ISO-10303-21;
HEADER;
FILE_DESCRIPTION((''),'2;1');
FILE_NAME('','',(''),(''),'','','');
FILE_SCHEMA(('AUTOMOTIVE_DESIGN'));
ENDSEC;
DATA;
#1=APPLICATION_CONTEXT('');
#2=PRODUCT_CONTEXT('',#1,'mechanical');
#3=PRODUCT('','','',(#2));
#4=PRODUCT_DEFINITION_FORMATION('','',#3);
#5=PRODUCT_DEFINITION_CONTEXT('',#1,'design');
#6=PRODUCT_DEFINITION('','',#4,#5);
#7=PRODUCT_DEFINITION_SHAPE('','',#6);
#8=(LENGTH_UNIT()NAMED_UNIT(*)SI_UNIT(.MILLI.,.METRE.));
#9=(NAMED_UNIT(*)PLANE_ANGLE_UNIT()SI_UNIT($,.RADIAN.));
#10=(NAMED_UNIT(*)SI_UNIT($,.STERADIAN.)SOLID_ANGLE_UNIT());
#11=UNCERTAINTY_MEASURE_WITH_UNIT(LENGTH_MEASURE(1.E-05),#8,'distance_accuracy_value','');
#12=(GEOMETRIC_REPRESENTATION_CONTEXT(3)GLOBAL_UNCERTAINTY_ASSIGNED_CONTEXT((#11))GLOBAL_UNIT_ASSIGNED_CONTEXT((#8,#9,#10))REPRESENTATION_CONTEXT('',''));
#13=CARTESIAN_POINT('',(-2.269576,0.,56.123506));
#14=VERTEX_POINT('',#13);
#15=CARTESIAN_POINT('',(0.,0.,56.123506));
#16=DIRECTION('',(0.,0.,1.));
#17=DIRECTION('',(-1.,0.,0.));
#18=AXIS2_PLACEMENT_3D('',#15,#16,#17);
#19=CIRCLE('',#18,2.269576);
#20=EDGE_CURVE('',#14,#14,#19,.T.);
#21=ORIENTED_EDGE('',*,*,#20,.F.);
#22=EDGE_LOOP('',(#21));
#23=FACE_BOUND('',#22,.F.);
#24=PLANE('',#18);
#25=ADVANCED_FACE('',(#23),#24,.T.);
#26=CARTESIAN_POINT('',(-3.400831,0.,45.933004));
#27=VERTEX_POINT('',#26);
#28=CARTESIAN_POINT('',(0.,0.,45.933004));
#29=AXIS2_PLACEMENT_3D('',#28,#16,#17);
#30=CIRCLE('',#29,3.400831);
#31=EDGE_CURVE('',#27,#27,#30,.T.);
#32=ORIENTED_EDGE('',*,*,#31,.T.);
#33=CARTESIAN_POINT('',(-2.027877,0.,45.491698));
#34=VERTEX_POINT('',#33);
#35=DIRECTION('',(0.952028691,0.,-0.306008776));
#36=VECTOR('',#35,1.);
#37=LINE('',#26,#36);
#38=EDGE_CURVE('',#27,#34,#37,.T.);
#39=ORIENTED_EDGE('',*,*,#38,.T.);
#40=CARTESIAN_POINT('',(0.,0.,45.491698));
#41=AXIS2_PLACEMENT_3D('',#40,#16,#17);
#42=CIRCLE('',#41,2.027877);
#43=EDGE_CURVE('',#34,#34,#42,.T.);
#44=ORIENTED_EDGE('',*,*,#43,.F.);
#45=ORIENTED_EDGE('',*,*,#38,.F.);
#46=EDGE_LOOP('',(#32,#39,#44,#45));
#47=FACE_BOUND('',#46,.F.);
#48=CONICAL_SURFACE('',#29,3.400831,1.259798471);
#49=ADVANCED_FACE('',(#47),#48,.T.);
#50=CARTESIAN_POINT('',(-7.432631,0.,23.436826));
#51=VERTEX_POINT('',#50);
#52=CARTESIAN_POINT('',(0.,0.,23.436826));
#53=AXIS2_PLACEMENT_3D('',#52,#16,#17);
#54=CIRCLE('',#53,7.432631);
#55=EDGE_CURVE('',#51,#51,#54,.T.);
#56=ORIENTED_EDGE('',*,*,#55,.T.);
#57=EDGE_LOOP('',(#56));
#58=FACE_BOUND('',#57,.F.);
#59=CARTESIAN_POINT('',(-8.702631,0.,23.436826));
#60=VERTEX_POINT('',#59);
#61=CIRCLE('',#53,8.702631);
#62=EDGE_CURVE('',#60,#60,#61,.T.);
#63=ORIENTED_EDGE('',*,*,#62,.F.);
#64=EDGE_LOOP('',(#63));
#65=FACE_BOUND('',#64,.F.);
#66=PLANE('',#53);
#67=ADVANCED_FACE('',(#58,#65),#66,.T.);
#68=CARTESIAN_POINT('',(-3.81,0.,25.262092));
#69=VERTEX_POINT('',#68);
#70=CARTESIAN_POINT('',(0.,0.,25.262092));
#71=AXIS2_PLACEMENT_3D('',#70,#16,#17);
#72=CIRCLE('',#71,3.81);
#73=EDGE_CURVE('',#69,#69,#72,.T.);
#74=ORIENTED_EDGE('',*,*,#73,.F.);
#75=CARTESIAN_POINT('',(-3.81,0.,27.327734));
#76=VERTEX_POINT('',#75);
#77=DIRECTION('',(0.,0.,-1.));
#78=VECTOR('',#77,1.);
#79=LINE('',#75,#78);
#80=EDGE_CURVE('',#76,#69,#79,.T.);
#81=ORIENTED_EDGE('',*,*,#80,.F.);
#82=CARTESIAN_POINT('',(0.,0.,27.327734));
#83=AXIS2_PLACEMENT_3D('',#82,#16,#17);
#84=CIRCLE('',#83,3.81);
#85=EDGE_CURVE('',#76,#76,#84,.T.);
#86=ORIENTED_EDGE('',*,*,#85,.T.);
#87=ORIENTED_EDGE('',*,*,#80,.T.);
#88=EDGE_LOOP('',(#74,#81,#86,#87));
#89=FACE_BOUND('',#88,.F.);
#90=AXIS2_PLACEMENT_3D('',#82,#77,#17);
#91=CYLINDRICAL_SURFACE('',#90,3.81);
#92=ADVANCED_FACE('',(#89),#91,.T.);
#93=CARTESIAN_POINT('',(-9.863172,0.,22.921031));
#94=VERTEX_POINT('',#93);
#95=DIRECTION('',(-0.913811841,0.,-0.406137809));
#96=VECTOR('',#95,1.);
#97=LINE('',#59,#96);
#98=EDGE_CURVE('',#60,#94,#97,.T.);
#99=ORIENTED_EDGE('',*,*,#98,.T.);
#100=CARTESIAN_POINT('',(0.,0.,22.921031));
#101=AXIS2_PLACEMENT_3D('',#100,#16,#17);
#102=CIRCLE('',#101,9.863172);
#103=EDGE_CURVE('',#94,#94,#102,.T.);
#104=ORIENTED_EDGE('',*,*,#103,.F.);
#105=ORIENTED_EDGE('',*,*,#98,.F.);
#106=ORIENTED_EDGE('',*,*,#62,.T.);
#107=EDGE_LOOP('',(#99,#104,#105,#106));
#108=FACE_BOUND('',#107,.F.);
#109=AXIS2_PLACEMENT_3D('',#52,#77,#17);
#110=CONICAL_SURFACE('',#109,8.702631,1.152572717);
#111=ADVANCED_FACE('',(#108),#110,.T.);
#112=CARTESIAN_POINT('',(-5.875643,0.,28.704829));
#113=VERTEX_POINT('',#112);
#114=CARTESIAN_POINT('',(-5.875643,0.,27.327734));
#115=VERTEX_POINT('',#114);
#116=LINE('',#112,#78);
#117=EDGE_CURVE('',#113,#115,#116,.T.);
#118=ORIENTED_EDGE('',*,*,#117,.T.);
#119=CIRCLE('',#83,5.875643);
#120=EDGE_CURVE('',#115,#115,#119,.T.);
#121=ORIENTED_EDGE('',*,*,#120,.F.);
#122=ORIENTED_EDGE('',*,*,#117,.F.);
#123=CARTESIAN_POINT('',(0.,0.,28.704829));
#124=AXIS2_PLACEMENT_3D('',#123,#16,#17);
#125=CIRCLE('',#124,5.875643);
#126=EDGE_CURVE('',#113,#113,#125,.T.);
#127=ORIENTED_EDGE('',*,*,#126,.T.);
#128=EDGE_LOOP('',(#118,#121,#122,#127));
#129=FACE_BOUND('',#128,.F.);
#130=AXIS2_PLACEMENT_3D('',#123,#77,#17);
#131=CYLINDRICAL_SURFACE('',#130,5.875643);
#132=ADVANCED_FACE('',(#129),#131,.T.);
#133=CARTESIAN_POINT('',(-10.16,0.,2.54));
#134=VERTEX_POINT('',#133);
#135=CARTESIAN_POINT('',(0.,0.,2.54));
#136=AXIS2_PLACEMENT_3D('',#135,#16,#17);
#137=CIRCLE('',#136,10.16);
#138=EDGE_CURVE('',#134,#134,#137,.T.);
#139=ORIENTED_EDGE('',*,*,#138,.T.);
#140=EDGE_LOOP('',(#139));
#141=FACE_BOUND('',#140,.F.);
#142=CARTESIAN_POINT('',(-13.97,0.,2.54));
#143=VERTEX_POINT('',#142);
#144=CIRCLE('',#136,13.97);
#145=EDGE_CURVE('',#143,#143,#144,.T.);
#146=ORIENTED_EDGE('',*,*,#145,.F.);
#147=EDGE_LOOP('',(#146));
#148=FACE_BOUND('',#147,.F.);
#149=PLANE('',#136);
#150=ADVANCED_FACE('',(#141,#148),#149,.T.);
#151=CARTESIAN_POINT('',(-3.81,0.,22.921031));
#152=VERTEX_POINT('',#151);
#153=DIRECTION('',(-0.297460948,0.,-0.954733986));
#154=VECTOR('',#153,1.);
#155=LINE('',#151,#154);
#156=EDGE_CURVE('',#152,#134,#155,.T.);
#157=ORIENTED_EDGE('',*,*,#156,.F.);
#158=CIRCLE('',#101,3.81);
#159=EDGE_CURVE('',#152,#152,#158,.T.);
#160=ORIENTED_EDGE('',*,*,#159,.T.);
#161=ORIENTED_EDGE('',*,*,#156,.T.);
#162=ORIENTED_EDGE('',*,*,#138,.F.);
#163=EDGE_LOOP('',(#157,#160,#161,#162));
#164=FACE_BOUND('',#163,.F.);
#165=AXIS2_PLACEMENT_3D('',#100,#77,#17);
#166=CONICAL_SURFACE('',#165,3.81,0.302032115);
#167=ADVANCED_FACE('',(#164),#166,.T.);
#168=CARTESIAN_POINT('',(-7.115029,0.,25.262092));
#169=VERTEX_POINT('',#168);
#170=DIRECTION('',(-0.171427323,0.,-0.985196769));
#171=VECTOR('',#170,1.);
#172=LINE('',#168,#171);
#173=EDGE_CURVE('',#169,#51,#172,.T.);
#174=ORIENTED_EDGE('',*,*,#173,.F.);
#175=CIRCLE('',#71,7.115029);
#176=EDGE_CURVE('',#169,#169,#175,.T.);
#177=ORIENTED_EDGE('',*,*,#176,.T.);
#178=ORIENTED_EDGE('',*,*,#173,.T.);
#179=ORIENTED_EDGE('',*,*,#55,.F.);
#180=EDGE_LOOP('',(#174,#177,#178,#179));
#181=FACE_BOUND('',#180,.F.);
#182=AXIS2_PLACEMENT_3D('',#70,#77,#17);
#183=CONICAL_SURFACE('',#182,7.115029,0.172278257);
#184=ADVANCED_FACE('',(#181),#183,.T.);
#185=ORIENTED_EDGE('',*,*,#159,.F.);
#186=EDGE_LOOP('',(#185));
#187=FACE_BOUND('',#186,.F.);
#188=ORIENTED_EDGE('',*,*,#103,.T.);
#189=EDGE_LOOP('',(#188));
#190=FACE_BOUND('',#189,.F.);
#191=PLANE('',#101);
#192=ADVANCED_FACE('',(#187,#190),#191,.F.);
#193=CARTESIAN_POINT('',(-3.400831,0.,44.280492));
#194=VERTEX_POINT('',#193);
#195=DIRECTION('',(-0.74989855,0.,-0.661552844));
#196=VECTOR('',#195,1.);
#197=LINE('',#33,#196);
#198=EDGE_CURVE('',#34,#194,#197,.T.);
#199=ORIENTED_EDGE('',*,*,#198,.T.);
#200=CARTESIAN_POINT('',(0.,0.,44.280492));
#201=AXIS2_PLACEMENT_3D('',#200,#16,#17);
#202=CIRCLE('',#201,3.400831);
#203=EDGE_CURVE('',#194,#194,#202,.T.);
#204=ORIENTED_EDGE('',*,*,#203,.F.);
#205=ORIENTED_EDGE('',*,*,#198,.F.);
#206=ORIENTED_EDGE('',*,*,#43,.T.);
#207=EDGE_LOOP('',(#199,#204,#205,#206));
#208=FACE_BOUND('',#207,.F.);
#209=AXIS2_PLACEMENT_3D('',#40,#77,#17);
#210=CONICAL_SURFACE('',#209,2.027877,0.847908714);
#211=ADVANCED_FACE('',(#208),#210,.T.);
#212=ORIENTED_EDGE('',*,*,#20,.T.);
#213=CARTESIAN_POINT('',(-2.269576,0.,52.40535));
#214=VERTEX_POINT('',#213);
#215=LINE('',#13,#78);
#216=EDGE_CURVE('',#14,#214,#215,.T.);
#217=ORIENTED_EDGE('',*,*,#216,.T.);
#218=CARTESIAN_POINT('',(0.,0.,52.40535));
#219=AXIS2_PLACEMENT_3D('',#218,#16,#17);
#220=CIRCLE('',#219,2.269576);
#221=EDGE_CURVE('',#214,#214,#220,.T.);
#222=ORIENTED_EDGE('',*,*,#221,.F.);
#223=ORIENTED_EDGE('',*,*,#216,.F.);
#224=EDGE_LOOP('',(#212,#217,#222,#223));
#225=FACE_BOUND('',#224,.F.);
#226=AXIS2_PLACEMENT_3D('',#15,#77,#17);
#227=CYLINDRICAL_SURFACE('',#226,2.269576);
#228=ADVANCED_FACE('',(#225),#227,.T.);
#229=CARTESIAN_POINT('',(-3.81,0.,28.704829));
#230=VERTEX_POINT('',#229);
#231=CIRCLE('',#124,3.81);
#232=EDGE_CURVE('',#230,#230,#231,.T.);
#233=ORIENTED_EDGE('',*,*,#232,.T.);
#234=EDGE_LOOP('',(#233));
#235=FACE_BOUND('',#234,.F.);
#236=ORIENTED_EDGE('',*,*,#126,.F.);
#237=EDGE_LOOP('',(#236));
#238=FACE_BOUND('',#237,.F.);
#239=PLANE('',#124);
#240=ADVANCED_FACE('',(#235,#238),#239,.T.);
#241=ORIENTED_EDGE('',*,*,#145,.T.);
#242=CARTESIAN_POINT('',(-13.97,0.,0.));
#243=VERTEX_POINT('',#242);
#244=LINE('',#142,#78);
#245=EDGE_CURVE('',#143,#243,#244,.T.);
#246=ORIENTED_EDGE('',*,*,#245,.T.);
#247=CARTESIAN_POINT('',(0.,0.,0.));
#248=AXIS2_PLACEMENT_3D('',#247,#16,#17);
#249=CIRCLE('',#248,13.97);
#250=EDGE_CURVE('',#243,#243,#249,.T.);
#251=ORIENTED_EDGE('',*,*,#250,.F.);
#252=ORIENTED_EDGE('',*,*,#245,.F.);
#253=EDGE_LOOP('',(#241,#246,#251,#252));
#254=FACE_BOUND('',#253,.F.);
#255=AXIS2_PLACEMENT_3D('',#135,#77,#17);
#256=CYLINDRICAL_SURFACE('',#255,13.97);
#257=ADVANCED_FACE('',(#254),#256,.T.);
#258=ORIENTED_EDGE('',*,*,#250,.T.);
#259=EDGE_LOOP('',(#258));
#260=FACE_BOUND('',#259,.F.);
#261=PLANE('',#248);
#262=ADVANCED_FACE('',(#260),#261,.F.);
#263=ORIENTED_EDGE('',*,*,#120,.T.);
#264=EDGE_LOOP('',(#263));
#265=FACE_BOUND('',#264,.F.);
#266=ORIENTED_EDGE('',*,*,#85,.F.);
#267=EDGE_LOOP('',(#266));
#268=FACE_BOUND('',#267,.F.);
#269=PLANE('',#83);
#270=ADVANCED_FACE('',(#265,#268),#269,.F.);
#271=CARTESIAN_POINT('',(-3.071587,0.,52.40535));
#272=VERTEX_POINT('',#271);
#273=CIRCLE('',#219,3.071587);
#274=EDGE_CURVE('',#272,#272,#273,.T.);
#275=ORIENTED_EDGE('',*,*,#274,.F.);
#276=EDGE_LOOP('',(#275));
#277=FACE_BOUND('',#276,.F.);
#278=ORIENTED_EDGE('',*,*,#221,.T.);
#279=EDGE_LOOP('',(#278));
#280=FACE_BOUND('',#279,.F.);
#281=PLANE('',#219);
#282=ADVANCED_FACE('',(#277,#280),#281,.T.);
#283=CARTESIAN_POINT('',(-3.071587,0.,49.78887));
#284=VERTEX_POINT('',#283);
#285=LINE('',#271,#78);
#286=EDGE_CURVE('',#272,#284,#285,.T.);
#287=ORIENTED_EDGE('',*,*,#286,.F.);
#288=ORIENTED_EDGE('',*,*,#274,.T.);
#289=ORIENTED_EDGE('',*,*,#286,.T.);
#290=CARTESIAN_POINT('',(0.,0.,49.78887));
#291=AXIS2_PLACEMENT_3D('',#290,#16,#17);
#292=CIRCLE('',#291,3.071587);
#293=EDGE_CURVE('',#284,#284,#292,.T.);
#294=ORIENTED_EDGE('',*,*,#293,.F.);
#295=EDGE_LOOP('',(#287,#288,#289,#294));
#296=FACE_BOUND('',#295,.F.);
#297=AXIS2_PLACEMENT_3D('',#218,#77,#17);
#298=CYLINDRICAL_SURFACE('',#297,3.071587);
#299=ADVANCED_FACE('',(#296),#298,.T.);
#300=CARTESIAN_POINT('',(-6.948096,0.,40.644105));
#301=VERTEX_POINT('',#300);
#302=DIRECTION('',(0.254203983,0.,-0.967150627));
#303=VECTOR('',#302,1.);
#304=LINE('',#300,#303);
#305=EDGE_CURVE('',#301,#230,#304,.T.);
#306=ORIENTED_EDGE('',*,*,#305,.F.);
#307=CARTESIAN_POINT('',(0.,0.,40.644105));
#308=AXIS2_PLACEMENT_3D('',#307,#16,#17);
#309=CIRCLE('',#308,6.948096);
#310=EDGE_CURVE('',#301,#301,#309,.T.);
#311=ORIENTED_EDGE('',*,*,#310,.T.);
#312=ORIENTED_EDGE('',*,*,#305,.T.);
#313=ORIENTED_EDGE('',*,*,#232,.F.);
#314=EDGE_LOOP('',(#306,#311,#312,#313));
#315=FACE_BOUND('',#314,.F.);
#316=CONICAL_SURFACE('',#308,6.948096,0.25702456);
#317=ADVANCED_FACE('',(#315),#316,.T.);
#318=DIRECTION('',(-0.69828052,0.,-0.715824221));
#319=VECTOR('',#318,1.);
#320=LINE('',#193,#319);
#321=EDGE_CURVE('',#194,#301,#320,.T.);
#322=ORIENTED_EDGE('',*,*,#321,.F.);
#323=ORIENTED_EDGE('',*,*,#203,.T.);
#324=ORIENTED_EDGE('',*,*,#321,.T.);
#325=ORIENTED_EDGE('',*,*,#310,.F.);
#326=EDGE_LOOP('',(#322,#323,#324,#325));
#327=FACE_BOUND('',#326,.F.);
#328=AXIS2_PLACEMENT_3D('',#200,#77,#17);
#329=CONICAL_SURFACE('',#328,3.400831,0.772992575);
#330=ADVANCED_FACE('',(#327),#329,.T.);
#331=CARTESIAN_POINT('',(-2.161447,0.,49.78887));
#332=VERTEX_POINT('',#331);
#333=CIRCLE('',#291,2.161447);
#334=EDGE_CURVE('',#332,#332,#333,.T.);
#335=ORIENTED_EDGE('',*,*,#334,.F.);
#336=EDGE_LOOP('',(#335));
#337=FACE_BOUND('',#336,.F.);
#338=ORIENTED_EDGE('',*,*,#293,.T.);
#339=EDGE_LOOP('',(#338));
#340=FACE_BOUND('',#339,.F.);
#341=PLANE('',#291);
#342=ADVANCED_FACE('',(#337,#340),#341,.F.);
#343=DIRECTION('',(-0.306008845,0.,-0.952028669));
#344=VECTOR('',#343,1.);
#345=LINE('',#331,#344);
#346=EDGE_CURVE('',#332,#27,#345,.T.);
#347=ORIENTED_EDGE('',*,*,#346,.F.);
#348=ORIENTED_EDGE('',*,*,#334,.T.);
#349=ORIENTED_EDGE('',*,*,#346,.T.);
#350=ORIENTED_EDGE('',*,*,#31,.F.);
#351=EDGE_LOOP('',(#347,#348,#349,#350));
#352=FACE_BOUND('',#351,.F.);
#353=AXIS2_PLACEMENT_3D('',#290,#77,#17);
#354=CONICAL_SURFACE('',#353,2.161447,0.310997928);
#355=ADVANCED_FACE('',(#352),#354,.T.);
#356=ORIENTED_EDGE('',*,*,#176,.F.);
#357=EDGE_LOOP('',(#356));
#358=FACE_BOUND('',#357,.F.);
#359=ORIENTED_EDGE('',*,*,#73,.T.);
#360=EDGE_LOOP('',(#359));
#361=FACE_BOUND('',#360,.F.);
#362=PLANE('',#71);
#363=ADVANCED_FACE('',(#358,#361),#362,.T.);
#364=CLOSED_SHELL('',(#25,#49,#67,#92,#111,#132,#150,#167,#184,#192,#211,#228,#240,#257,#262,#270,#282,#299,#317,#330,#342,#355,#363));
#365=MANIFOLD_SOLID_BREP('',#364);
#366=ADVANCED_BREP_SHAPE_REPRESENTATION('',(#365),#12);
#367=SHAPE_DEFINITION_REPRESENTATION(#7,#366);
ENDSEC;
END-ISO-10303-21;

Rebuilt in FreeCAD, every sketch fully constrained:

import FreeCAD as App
import Part
import Sketcher
from FreeCAD import Vector
Q = App.Units.Quantity


def add_polygon(sketch, points):
    """Adds a closed chain of lines whose ends are joined by coincident constraints."""
    first, n = sketch.GeometryCount, len(points)
    for a, b in zip(points, points[1:] + points[:1]):
        sketch.addGeometry(Part.LineSegment(App.Vector(*a, 0), App.Vector(*b, 0)), False)
    for i in range(n):
        sketch.addConstraint(Sketcher.Constraint("Coincident", first + i, 2, first + (i + 1) % n, 1))

doc = App.newDocument("Part")
body = doc.addObject("PartDesign::Body", "Body")

# Sketch on XZ plane
sketch1 = body.newObject("Sketcher::SketchObject", "Sketch")
sketch1.AttachmentSupport = (doc.getObject("XZ_Plane"), [""])
sketch1.MapMode = "FlatFace"
add_polygon(sketch1, [(-14, 0), (0, 0), (0, 56.1), (-2.3, 56.1), (-2.3, 52.4), (-3.1, 52.4), (-3.1, 49.8), (-2.2, 49.8), (-3.4, 45.9), (-2, 45.5), (-3.4, 44.3), (-6.9, 40.6), (-3.8, 28.7), (-5.9, 28.7), (-5.9, 27.3), (-3.8, 27.3), (-3.8, 25.3), (-7.1, 25.3), (-7.4, 23.4), (-8.7, 23.4), (-9.9, 22.9), (-3.8, 22.9), (-10.2, 2.5), (-14, 2.5)])  # lines 0-23
sketch1.addConstraint([
    Sketcher.Constraint("Horizontal", 0),
    Sketcher.Constraint("Vertical", 1),
    Sketcher.Constraint("Horizontal", 2),
    Sketcher.Constraint("Vertical", 3),
    Sketcher.Constraint("Horizontal", 4),
    Sketcher.Constraint("Vertical", 5),
    Sketcher.Constraint("Horizontal", 6),
    Sketcher.Constraint("Horizontal", 12),
    Sketcher.Constraint("Vertical", 13),
    Sketcher.Constraint("Horizontal", 14),
    Sketcher.Constraint("Vertical", 15),
    Sketcher.Constraint("Horizontal", 16),
    Sketcher.Constraint("Horizontal", 18),
    Sketcher.Constraint("Horizontal", 20),
    Sketcher.Constraint("Horizontal", 22),
    Sketcher.Constraint("Vertical", 23),
    Sketcher.Constraint("Coincident", 0, 2, -1, 1),
    Sketcher.Constraint("Perpendicular", 7, 8),
    Sketcher.Constraint("Vertical", 7, 2, 9, 2),
    Sketcher.Constraint("Vertical", 11, 2, 14, 2),
    Sketcher.Constraint("Vertical", 15, 2, 20, 2),
    Sketcher.Constraint("Equal", 14, 15),
    Sketcher.Constraint("DistanceY", 23, 2, 23, 1, Q("0.1 in")),
    Sketcher.Constraint("Distance", 10, Q("0.2 in")),
    Sketcher.Constraint("DistanceX", 0, 1, 0, 2, Q("0.55 in")),
    Sketcher.Constraint("DistanceX", 18, 2, 18, 1, Q("0.05 in")),
    Sketcher.Constraint("DistanceX", 22, 2, 22, 1, Q("0.15 in")),
    Sketcher.Constraint("Distance", 19, Q("0.05 in")),
    Sketcher.Constraint("DistanceX", 11, 2, -1, 1, Q("0.15 in")),
    Sketcher.Constraint("DistanceX", 4, 2, 4, 1, 0.802011),
    Sketcher.Constraint("DistanceX", 6, 1, 6, 2, 0.91014),
    Sketcher.Constraint("DistanceX", 16, 2, 16, 1, 3.305029),
    Sketcher.Constraint("DistanceY", 5, 2, 5, 1, 2.61648),
    Sketcher.Constraint("DistanceX", 3, 2, 8, 2, 0.241699),
    Sketcher.Constraint("DistanceY", 10, 2, 7, 2, 5.288899),
    Sketcher.Constraint("DistanceX", 17, 2, 16, 2, 0.317602),
    Sketcher.Constraint("Distance", 17, 1.852692),
    Sketcher.Constraint("Distance", 21, 21.34734),
    Sketcher.Constraint("DistanceX", 2, 2, 2, 1, 2.269576),
    Sketcher.Constraint("DistanceX", 12, 2, 12, 1, 2.065643),
    Sketcher.Constraint("DistanceX", 20, 1, 20, 2, 6.053172),
    Sketcher.Constraint("DistanceY", 1, 1, 1, 2, 56.123506),
    Sketcher.Constraint("DistanceY", 3, 2, 3, 1, 3.718156),
    Sketcher.Constraint("DistanceY", 13, 2, 13, 1, 1.377095),
    Sketcher.Constraint("DistanceX", 7, 2, -1, 1, 3.400831),
    Sketcher.Constraint("DistanceY", 8, 2, 3, 2, 6.913652),
    Sketcher.Constraint("DistanceY", 9, 2, 7, 2, 1.652512),
])
revolution = body.newObject("PartDesign::Revolution", "Revolution")
revolution.Profile = sketch1
revolution.ReferenceAxis = (sketch1, ["V_Axis"])
revolution.Angle = 360

doc.recompute()
